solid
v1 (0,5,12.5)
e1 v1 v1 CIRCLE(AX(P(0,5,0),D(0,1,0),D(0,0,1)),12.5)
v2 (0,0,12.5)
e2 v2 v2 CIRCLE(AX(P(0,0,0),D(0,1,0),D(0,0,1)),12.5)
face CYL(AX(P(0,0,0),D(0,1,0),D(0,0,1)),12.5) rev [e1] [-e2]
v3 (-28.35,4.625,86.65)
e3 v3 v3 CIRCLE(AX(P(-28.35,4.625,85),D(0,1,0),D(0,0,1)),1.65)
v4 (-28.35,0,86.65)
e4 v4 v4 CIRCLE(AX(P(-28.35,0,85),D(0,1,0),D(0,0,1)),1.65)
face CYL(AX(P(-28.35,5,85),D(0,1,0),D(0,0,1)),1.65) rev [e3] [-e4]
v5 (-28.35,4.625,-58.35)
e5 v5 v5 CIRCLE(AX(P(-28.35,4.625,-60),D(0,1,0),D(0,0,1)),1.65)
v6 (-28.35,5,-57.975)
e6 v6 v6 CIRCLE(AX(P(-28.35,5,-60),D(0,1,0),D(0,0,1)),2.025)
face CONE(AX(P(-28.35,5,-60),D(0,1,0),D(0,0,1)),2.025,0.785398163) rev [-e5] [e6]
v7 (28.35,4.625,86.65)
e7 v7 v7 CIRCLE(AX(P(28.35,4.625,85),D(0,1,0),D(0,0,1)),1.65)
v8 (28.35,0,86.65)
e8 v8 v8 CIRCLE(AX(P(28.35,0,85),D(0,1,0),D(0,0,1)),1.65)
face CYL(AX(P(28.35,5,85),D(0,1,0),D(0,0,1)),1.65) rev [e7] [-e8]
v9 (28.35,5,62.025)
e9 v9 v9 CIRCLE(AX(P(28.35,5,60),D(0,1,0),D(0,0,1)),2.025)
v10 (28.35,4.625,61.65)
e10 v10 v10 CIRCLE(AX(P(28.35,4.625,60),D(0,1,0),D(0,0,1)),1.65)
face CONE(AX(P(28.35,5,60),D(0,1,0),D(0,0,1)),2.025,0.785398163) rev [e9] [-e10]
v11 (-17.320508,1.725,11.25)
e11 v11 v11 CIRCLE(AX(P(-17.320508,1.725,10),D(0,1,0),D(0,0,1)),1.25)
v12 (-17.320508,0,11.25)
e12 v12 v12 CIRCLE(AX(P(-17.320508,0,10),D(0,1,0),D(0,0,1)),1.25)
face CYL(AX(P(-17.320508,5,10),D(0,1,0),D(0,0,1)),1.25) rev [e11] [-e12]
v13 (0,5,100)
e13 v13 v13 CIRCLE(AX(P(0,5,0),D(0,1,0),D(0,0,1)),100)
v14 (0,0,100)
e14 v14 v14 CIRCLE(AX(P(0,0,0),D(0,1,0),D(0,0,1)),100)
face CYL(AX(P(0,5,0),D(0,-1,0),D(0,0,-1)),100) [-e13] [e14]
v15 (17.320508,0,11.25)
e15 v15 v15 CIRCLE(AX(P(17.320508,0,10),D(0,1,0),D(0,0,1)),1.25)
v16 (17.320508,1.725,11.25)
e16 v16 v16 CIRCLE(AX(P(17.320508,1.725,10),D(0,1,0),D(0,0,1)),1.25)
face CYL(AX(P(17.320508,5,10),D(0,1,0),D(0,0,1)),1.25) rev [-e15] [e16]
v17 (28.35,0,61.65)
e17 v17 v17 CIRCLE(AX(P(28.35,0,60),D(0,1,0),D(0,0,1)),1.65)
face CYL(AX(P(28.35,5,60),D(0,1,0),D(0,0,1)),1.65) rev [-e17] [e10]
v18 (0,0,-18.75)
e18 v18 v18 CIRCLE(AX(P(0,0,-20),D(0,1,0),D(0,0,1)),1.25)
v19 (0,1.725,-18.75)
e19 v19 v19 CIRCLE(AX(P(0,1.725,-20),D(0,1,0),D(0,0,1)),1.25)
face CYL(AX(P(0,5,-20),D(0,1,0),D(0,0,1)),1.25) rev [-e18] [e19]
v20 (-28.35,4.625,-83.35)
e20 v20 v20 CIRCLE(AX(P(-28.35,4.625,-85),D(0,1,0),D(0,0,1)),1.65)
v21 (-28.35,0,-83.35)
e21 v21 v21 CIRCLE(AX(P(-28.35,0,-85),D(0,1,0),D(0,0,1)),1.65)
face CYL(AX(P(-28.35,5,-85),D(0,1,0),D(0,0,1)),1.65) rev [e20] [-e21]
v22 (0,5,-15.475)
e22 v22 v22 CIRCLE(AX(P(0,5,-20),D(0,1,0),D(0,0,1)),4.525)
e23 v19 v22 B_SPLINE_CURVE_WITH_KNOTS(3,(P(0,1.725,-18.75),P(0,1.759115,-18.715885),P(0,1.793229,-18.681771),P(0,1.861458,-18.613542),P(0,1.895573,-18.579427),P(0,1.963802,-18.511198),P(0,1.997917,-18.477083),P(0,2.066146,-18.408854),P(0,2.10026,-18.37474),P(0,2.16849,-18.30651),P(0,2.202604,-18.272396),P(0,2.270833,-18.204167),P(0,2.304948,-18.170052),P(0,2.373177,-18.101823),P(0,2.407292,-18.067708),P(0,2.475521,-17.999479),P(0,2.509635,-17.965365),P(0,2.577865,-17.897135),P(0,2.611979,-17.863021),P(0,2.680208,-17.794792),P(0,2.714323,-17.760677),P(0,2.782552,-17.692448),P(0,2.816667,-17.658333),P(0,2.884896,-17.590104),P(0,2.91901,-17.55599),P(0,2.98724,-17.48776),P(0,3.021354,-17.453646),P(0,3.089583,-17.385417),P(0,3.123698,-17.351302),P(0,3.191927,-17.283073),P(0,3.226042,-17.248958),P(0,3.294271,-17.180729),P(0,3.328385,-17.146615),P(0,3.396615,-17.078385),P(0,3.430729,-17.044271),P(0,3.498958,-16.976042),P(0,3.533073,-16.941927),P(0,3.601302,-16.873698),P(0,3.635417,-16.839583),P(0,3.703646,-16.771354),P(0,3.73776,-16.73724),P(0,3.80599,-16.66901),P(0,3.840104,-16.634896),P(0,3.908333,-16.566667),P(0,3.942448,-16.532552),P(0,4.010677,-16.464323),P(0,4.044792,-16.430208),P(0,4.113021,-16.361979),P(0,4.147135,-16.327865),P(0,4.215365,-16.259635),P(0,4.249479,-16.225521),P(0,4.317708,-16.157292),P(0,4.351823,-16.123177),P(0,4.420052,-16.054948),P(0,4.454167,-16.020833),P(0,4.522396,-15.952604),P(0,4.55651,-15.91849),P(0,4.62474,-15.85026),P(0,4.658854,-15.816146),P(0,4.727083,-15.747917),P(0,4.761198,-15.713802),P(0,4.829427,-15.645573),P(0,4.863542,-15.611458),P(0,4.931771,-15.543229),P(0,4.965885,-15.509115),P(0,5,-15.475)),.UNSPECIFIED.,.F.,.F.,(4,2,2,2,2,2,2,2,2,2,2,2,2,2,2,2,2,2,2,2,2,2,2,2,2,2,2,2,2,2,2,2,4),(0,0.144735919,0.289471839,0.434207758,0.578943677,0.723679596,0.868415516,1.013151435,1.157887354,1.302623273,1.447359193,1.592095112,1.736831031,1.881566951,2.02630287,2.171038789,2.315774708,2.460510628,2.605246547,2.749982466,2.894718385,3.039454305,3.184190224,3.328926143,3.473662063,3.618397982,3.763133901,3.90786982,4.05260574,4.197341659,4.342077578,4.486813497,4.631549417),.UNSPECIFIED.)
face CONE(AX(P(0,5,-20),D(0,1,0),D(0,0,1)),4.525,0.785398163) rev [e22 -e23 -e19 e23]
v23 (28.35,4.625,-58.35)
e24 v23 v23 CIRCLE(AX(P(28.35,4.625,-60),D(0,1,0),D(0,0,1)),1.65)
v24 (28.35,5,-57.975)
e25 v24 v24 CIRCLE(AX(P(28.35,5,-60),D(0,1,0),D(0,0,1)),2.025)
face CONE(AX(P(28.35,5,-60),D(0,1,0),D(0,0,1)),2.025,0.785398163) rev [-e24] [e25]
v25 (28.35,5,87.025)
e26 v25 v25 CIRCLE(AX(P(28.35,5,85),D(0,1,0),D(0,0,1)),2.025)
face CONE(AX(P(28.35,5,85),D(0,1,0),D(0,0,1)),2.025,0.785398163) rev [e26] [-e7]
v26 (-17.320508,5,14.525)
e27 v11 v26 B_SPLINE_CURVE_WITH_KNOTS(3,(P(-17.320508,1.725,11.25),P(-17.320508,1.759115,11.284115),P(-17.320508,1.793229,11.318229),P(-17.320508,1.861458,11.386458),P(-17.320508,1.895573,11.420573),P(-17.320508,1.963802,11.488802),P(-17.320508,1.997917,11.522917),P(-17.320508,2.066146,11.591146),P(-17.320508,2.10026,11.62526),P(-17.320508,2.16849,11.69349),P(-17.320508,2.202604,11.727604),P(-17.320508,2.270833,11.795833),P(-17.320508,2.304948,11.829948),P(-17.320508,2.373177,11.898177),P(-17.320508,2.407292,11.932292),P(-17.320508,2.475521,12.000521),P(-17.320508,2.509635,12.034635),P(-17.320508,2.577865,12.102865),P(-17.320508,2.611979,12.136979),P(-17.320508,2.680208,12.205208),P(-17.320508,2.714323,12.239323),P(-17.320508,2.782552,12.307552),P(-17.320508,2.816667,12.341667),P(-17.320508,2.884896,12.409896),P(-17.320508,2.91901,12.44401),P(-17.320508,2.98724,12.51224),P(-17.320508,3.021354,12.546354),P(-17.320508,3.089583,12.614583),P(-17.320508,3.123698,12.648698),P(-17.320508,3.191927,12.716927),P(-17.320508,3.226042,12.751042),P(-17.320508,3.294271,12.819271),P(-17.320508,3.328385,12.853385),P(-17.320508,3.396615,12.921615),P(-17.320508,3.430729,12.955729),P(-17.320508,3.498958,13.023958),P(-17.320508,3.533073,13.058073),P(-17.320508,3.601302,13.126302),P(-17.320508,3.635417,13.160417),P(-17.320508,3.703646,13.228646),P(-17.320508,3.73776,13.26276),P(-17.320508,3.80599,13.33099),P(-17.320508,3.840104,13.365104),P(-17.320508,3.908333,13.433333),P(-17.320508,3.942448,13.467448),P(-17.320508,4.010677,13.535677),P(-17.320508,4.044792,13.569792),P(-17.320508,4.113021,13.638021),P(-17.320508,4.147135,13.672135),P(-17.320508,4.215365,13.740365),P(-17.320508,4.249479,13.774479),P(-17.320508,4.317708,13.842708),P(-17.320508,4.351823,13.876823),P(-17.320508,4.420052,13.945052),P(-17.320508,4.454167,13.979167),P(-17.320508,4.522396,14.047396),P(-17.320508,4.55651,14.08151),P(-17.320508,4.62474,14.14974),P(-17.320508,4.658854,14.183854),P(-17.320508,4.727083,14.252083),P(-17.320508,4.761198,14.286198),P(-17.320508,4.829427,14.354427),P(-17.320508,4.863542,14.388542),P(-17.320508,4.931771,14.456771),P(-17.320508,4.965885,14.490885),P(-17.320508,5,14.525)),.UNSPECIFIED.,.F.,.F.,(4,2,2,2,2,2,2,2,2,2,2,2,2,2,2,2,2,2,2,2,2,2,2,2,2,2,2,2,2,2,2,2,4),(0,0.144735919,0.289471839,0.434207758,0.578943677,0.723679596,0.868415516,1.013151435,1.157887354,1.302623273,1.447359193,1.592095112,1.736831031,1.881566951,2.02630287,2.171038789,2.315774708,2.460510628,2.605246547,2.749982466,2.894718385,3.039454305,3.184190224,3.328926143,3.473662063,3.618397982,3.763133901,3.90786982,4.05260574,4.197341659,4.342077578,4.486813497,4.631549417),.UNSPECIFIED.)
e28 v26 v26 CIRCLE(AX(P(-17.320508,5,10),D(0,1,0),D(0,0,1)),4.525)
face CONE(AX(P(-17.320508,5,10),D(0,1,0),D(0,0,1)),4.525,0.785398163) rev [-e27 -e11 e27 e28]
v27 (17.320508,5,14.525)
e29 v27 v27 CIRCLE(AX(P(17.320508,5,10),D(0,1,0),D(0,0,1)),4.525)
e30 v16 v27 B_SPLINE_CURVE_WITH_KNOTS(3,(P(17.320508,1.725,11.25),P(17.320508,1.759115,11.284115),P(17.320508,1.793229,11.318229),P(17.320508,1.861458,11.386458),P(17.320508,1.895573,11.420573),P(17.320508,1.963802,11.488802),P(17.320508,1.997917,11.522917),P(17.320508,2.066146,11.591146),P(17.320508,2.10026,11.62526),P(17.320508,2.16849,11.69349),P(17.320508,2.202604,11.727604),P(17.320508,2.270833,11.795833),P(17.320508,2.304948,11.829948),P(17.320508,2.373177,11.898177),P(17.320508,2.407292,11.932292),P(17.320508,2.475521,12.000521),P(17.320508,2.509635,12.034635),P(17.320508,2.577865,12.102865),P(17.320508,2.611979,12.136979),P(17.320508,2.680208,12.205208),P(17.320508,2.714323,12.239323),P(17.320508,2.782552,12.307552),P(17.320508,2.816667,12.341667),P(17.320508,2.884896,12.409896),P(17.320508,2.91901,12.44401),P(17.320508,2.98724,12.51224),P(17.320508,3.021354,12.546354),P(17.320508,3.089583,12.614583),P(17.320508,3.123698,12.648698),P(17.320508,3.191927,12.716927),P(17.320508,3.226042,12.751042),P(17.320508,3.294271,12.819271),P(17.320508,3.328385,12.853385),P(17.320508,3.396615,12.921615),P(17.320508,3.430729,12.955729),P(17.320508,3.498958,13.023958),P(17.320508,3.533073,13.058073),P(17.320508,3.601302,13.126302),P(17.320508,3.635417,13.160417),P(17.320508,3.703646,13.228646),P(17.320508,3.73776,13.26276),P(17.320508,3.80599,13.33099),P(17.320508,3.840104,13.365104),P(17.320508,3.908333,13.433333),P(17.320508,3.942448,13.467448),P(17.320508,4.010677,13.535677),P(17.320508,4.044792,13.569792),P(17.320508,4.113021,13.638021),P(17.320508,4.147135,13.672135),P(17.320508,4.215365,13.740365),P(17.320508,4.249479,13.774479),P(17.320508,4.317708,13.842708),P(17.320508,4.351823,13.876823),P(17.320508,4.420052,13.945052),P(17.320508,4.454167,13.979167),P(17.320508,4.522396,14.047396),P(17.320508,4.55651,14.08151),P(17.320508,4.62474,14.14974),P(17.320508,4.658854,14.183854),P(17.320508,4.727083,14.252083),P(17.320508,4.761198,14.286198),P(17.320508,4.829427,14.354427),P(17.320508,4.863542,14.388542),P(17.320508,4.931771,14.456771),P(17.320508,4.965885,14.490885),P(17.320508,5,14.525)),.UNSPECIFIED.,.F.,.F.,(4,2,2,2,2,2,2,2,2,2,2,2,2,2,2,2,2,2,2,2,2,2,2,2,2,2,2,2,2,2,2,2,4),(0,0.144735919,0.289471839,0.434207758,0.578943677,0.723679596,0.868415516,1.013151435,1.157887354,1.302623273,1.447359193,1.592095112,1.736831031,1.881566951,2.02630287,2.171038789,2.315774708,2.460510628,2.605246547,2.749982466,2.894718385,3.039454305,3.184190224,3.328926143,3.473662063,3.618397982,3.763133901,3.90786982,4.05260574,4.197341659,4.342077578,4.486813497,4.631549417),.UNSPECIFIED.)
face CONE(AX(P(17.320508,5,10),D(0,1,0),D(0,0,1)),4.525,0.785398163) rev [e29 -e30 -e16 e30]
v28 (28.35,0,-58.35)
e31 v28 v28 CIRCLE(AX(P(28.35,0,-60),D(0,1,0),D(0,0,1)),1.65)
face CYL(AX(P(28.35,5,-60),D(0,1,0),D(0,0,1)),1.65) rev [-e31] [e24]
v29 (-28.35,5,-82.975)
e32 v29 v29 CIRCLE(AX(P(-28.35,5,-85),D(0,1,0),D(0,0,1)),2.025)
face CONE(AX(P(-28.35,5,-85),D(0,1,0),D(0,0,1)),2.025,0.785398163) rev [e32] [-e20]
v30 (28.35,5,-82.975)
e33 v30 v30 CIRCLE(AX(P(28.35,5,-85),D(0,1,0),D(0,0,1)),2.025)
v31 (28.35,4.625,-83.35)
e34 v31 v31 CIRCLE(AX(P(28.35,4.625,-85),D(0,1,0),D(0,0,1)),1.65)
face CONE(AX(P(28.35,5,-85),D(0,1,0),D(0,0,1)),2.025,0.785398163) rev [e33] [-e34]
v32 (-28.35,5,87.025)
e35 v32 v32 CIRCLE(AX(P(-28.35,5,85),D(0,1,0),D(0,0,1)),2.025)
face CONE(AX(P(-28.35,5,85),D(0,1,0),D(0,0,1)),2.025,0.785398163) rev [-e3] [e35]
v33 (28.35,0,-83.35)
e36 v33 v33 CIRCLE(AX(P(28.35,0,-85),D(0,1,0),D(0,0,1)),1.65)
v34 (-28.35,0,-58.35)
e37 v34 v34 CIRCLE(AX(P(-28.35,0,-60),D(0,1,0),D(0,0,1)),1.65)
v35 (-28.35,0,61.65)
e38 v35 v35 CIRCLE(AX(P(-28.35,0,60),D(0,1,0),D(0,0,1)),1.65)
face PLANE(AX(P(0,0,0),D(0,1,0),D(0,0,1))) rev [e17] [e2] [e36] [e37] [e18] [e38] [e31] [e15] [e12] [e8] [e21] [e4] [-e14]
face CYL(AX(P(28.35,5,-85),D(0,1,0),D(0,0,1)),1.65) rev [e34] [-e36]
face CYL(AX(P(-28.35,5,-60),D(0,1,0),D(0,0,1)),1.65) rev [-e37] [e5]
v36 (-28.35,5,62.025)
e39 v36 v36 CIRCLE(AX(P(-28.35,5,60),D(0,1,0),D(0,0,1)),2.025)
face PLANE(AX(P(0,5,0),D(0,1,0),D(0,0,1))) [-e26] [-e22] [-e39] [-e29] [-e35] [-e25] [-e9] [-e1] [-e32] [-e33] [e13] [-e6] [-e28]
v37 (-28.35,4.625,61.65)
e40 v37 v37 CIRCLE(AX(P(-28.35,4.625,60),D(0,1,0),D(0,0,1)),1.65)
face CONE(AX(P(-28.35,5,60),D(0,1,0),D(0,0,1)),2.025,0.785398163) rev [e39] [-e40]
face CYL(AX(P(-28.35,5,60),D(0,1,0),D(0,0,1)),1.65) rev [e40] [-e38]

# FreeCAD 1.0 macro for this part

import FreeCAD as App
import Part
import Sketcher
from FreeCAD import Vector
Q = App.Units.Quantity

doc = App.newDocument("Part")
body = doc.addObject("PartDesign::Body", "Body")

# Sketch on XZ plane
sketch1 = body.newObject("Sketcher::SketchObject", "Sketch")
sketch1.AttachmentSupport = (doc.getObject("XZ_Plane"), [""])
sketch1.MapMode = "FlatFace"
sketch1.addGeometry(Part.Circle(Vector(0, 0, 0), Vector(0, 0, 1), 100), False)
sketch1.addConstraint(Sketcher.Constraint("Coincident", 0, 3, -1, 1))
sketch1.addConstraint(Sketcher.Constraint("Diameter", 0, Q("200 mm")))
pad1 = body.newObject("PartDesign::Pad", "Pad")
pad1.Profile = sketch1
pad1.Length = 5
pad1.Reversed = True

# Sketch on XZ plane
sketch2 = body.newObject("Sketcher::SketchObject", "Sketch001")
sketch2.AttachmentSupport = (doc.getObject("XZ_Plane"), [""])
sketch2.MapMode = "FlatFace"
sketch2.AttachmentOffset = App.Placement(Vector(0, 0, -5), App.Rotation())
sketch2.addGeometry(Part.Circle(Vector(0, -20, 0), Vector(0, 0, 1), 1.2), False)
sketch2.addGeometry(Part.Circle(Vector(17.3, 10, 0), Vector(0, 0, 1), 1.2), False)
sketch2.addGeometry(Part.Circle(Vector(-17.3, 10, 0), Vector(0, 0, 1), 1.2), False)
sketch2.addConstraint(Sketcher.Constraint("Equal", 0, 1))
sketch2.addConstraint(Sketcher.Constraint("Equal", 1, 2))
sketch2.addConstraint(Sketcher.Constraint("Symmetric", 1, 3, 2, 3, -2))
sketch2.addConstraint(Sketcher.Constraint("PointOnObject", 0, 3, -2))
sketch2.addConstraint(Sketcher.Constraint("Diameter", 0, Q("2.5 mm")))
sketch2.addConstraint(Sketcher.Constraint("DistanceY", 0, 3, -1, 1, Q("20 mm")))
sketch2.addConstraint(Sketcher.Constraint("DistanceY", -1, 1, 1, 3, Q("10 mm")))
sketch2.addConstraint(Sketcher.Constraint("DistanceX", -1, 1, 1, 3, Q("17.320508 mm")))
doc.recompute()
hole = body.newObject("PartDesign::Hole", "Hole")
hole.Profile = sketch2
hole.ThreadType = "None"
hole.Diameter = 2.5
hole.DepthType = "ThroughAll"
hole.HoleCutType = "Countersink"
hole.HoleCutDiameter = 9.05
hole.HoleCutCountersinkAngle = 90
hole.Reversed = True

# Sketch on XZ plane
sketch3 = body.newObject("Sketcher::SketchObject", "Sketch002")
sketch3.AttachmentSupport = (doc.getObject("XZ_Plane"), [""])
sketch3.MapMode = "FlatFace"
sketch3.AttachmentOffset = App.Placement(Vector(0, 0, -5), App.Rotation())
sketch3.addGeometry(Part.Circle(Vector(0, 0, 0), Vector(0, 0, 1), 12), False)
sketch3.addConstraint(Sketcher.Constraint("Coincident", 0, 3, -1, 1))
sketch3.addConstraint(Sketcher.Constraint("Diameter", 0, Q("25 mm")))
pocket1 = body.newObject("PartDesign::Pocket", "Pocket")
pocket1.Profile = sketch3
pocket1.Type = "ThroughAll"
pocket1.Reversed = True

# Sketch on XZ plane
sketch4 = body.newObject("Sketcher::SketchObject", "Sketch003")
sketch4.AttachmentSupport = (doc.getObject("XZ_Plane"), [""])
sketch4.MapMode = "FlatFace"
sketch4.AttachmentOffset = App.Placement(Vector(0, 0, -5), App.Rotation())
sketch4.addGeometry(Part.Circle(Vector(0, 0, 0), Vector(0, 0, 1), 1.6), False)
sketch4.addGeometry(Part.Circle(Vector(-28.4, -85, 0), Vector(0, 0, 1), 1.6), False)
sketch4.addGeometry(Part.Circle(Vector(28.4, -85, 0), Vector(0, 0, 1), 1.6), False)
sketch4.addGeometry(Part.Circle(Vector(28.4, 85, 0), Vector(0, 0, 1), 1.6), False)
sketch4.addGeometry(Part.Circle(Vector(-28.4, 85, 0), Vector(0, 0, 1), 1.6), False)
sketch4.addGeometry(Part.Circle(Vector(-28.4, -60, 0), Vector(0, 0, 1), 1.6), False)
sketch4.addGeometry(Part.Circle(Vector(28.4, -60, 0), Vector(0, 0, 1), 1.6), False)
sketch4.addGeometry(Part.Circle(Vector(-28.4, 60, 0), Vector(0, 0, 1), 1.6), False)
sketch4.addGeometry(Part.Circle(Vector(28.4, 60, 0), Vector(0, 0, 1), 1.6), False)
sketch4.addConstraint(Sketcher.Constraint("Coincident", 0, 3, -1, 1))
sketch4.addConstraint(Sketcher.Constraint("Equal", 0, 1))
sketch4.addConstraint(Sketcher.Constraint("Equal", 1, 2))
sketch4.addConstraint(Sketcher.Constraint("Equal", 2, 3))
sketch4.addConstraint(Sketcher.Constraint("Equal", 3, 4))
sketch4.addConstraint(Sketcher.Constraint("Equal", 4, 5))
sketch4.addConstraint(Sketcher.Constraint("Equal", 5, 6))
sketch4.addConstraint(Sketcher.Constraint("Equal", 6, 7))
sketch4.addConstraint(Sketcher.Constraint("Equal", 7, 8))
sketch4.addConstraint(Sketcher.Constraint("Symmetric", 1, 3, 3, 3, -1, 1))
sketch4.addConstraint(Sketcher.Constraint("Symmetric", 2, 3, 4, 3, -1, 1))
sketch4.addConstraint(Sketcher.Constraint("Symmetric", 6, 3, 7, 3, -1, 1))
sketch4.addConstraint(Sketcher.Constraint("Symmetric", 5, 3, 8, 3, -1, 1))
sketch4.addConstraint(Sketcher.Constraint("Symmetric", 1, 3, 2, 3, -2))
sketch4.addConstraint(Sketcher.Constraint("Symmetric", 5, 3, 6, 3, -2))
sketch4.addConstraint(Sketcher.Constraint("Vertical", 4, 3, 5, 3))
sketch4.addConstraint(Sketcher.Constraint("Diameter", 0, Q("3.3 mm")))
sketch4.addConstraint(Sketcher.Constraint("DistanceY", 1, 3, -1, 1, Q("85 mm")))
sketch4.addConstraint(Sketcher.Constraint("DistanceY", 5, 3, -1, 1, Q("60 mm")))
sketch4.addConstraint(Sketcher.Constraint("DistanceX", 1, 3, 2, 3, Q("56.7 mm")))
doc.recompute()
hole2 = body.newObject("PartDesign::Hole", "Hole001")
hole2.Profile = sketch4
hole2.ThreadType = "None"
hole2.Diameter = 3.3
hole2.DepthType = "Dimension"
hole2.Depth = 5
hole2.DrillPoint = "Flat"
hole2.HoleCutType = "Countersink"
hole2.HoleCutDiameter = 4.05
hole2.HoleCutCountersinkAngle = 90
hole2.Reversed = True

doc.recompute()
